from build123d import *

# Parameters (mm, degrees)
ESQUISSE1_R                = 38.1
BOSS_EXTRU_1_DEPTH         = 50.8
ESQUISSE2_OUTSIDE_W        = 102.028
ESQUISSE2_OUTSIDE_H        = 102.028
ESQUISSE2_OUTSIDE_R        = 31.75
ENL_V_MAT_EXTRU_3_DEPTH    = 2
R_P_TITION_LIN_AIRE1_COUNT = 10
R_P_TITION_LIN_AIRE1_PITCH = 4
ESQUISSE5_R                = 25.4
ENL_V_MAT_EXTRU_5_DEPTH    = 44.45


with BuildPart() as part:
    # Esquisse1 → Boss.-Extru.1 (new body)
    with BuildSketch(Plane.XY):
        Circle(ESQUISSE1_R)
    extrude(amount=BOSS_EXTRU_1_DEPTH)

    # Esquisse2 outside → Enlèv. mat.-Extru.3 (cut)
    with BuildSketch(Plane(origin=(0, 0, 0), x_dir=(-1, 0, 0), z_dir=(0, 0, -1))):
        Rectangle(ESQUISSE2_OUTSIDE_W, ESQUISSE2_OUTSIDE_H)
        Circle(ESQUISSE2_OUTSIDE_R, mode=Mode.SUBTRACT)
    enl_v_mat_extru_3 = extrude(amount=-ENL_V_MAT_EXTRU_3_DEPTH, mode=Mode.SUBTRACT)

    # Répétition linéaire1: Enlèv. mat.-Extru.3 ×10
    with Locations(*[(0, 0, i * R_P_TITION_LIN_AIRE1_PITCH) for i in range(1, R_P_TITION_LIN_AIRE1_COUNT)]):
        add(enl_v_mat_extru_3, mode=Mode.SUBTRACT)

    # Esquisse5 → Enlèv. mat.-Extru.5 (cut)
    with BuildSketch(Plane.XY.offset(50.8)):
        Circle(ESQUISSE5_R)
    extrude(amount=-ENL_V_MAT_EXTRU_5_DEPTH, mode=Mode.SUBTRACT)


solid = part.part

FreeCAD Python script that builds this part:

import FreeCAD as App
import Part
import Sketcher
from FreeCAD import Vector
Q = App.Units.Quantity

doc = App.newDocument("Part")
params = doc.addObject("Spreadsheet::Sheet", "Params")
for row, (alias, value) in enumerate([
    ("sketch1_diameter", "3 in"),
    ("pad1_length", "2 in"),
    ("sketch2_diameter", "2.5 in"),
    ("pocket1_length", "2 mm"),
    ("linearpattern_pitch", "4 mm"),
    ("sketch3_diameter", "2 in"),
    ("pocket2_length", "1.75 in"),
], start=1):
    params.set(f"A{row}", alias)
    params.set(f"B{row}", "=" + value)
    params.setAlias(f"B{row}", alias)

body = doc.addObject("PartDesign::Body", "Body")

# Sketch on XY plane
sketch1 = doc.addObject("Sketcher::SketchObject", "Sketch")
body.addObject(sketch1)
sketch1.AttachmentSupport = (doc.XY_Plane, [""])
sketch1.MapMode = "FlatFace"
sketch1.addGeometry(Part.Circle(Vector(0, 0, 0), Vector(0, 0, 1), 38), False)
sketch1.addConstraint([
    Sketcher.Constraint("Coincident", 0, 3, -1, 1),
    Sketcher.Constraint("Diameter", 0, Q("3 in")),
])
sketch1.setExpression("Constraints[1]", "Params.sketch1_diameter")
pad1 = doc.addObject("PartDesign::Pad", "Pad")
body.addObject(pad1)
pad1.Profile = sketch1
pad1.setExpression("Length", "Params.pad1_length")

# Sketch on XY plane
sketch2 = doc.addObject("Sketcher::SketchObject", "Sketch001")
body.addObject(sketch2)
sketch2.AttachmentSupport = (doc.XY_Plane, [""])
sketch2.MapMode = "FlatFace"
sketch2.addGeometry([
    Part.LineSegment(Vector(51, 51, 0), Vector(51, -51, 0)),  # 0
    Part.LineSegment(Vector(51, -51, 0), Vector(-51, -51, 0)),  # 1
    Part.LineSegment(Vector(-51, -51, 0), Vector(-51, 51, 0)),  # 2
    Part.LineSegment(Vector(-51, 51, 0), Vector(51, 51, 0)),  # 3
    Part.Circle(Vector(0, 0, 0), Vector(0, 0, 1), 32),  # 4
], False)
sketch2.addConstraint([
    Sketcher.Constraint("Coincident", 0, 2, 1, 1),
    Sketcher.Constraint("Coincident", 1, 2, 2, 1),
    Sketcher.Constraint("Coincident", 2, 2, 3, 1),
    Sketcher.Constraint("Coincident", 3, 2, 0, 1),
    Sketcher.Constraint("Vertical", 0),
    Sketcher.Constraint("Horizontal", 1),
    Sketcher.Constraint("Vertical", 2),
    Sketcher.Constraint("Horizontal", 3),
    Sketcher.Constraint("Coincident", 4, 3, -1, 1),
    Sketcher.Constraint("Symmetric", 0, 2, 2, 2, -1, 1),
    Sketcher.Constraint("Equal", 3, 0),
    Sketcher.Constraint("Diameter", 4, Q("2.5 in")),
    Sketcher.Constraint("DistanceX", 1, 2, 1, 1, 102.028),
])
sketch2.setExpression("Constraints[11]", "Params.sketch2_diameter")
pocket1 = doc.addObject("PartDesign::Pocket", "Pocket")
body.addObject(pocket1)
pocket1.Profile = sketch2
pocket1.setExpression("Length", "Params.pocket1_length")
pocket1.Reversed = True
doc.recompute()

linearpattern = doc.addObject("PartDesign::LinearPattern", "LinearPattern")
body.addObject(linearpattern)
linearpattern.Originals = [pocket1]
linearpattern.Direction = (doc.Z_Axis, [""])
linearpattern.Mode = "offset"
linearpattern.setExpression("Offset", "Params.linearpattern_pitch")
linearpattern.Occurrences = 10
body.Tip = linearpattern

# Sketch on XY plane
sketch3 = doc.addObject("Sketcher::SketchObject", "Sketch002")
body.addObject(sketch3)
sketch3.AttachmentSupport = (doc.XY_Plane, [""])
sketch3.MapMode = "FlatFace"
sketch3.AttachmentOffset = App.Placement(Vector(0, 0, 2 * 25.4), App.Rotation())
sketch3.addGeometry(Part.Circle(Vector(0, 0, 0), Vector(0, 0, 1), 25), False)
sketch3.addConstraint([
    Sketcher.Constraint("Coincident", 0, 3, -1, 1),
    Sketcher.Constraint("Diameter", 0, Q("2 in")),
])
sketch3.setExpression("Constraints[1]", "Params.sketch3_diameter")
pocket2 = doc.addObject("PartDesign::Pocket", "Pocket001")
body.addObject(pocket2)
pocket2.Profile = sketch3
pocket2.setExpression("Length", "Params.pocket2_length")

doc.recompute()
